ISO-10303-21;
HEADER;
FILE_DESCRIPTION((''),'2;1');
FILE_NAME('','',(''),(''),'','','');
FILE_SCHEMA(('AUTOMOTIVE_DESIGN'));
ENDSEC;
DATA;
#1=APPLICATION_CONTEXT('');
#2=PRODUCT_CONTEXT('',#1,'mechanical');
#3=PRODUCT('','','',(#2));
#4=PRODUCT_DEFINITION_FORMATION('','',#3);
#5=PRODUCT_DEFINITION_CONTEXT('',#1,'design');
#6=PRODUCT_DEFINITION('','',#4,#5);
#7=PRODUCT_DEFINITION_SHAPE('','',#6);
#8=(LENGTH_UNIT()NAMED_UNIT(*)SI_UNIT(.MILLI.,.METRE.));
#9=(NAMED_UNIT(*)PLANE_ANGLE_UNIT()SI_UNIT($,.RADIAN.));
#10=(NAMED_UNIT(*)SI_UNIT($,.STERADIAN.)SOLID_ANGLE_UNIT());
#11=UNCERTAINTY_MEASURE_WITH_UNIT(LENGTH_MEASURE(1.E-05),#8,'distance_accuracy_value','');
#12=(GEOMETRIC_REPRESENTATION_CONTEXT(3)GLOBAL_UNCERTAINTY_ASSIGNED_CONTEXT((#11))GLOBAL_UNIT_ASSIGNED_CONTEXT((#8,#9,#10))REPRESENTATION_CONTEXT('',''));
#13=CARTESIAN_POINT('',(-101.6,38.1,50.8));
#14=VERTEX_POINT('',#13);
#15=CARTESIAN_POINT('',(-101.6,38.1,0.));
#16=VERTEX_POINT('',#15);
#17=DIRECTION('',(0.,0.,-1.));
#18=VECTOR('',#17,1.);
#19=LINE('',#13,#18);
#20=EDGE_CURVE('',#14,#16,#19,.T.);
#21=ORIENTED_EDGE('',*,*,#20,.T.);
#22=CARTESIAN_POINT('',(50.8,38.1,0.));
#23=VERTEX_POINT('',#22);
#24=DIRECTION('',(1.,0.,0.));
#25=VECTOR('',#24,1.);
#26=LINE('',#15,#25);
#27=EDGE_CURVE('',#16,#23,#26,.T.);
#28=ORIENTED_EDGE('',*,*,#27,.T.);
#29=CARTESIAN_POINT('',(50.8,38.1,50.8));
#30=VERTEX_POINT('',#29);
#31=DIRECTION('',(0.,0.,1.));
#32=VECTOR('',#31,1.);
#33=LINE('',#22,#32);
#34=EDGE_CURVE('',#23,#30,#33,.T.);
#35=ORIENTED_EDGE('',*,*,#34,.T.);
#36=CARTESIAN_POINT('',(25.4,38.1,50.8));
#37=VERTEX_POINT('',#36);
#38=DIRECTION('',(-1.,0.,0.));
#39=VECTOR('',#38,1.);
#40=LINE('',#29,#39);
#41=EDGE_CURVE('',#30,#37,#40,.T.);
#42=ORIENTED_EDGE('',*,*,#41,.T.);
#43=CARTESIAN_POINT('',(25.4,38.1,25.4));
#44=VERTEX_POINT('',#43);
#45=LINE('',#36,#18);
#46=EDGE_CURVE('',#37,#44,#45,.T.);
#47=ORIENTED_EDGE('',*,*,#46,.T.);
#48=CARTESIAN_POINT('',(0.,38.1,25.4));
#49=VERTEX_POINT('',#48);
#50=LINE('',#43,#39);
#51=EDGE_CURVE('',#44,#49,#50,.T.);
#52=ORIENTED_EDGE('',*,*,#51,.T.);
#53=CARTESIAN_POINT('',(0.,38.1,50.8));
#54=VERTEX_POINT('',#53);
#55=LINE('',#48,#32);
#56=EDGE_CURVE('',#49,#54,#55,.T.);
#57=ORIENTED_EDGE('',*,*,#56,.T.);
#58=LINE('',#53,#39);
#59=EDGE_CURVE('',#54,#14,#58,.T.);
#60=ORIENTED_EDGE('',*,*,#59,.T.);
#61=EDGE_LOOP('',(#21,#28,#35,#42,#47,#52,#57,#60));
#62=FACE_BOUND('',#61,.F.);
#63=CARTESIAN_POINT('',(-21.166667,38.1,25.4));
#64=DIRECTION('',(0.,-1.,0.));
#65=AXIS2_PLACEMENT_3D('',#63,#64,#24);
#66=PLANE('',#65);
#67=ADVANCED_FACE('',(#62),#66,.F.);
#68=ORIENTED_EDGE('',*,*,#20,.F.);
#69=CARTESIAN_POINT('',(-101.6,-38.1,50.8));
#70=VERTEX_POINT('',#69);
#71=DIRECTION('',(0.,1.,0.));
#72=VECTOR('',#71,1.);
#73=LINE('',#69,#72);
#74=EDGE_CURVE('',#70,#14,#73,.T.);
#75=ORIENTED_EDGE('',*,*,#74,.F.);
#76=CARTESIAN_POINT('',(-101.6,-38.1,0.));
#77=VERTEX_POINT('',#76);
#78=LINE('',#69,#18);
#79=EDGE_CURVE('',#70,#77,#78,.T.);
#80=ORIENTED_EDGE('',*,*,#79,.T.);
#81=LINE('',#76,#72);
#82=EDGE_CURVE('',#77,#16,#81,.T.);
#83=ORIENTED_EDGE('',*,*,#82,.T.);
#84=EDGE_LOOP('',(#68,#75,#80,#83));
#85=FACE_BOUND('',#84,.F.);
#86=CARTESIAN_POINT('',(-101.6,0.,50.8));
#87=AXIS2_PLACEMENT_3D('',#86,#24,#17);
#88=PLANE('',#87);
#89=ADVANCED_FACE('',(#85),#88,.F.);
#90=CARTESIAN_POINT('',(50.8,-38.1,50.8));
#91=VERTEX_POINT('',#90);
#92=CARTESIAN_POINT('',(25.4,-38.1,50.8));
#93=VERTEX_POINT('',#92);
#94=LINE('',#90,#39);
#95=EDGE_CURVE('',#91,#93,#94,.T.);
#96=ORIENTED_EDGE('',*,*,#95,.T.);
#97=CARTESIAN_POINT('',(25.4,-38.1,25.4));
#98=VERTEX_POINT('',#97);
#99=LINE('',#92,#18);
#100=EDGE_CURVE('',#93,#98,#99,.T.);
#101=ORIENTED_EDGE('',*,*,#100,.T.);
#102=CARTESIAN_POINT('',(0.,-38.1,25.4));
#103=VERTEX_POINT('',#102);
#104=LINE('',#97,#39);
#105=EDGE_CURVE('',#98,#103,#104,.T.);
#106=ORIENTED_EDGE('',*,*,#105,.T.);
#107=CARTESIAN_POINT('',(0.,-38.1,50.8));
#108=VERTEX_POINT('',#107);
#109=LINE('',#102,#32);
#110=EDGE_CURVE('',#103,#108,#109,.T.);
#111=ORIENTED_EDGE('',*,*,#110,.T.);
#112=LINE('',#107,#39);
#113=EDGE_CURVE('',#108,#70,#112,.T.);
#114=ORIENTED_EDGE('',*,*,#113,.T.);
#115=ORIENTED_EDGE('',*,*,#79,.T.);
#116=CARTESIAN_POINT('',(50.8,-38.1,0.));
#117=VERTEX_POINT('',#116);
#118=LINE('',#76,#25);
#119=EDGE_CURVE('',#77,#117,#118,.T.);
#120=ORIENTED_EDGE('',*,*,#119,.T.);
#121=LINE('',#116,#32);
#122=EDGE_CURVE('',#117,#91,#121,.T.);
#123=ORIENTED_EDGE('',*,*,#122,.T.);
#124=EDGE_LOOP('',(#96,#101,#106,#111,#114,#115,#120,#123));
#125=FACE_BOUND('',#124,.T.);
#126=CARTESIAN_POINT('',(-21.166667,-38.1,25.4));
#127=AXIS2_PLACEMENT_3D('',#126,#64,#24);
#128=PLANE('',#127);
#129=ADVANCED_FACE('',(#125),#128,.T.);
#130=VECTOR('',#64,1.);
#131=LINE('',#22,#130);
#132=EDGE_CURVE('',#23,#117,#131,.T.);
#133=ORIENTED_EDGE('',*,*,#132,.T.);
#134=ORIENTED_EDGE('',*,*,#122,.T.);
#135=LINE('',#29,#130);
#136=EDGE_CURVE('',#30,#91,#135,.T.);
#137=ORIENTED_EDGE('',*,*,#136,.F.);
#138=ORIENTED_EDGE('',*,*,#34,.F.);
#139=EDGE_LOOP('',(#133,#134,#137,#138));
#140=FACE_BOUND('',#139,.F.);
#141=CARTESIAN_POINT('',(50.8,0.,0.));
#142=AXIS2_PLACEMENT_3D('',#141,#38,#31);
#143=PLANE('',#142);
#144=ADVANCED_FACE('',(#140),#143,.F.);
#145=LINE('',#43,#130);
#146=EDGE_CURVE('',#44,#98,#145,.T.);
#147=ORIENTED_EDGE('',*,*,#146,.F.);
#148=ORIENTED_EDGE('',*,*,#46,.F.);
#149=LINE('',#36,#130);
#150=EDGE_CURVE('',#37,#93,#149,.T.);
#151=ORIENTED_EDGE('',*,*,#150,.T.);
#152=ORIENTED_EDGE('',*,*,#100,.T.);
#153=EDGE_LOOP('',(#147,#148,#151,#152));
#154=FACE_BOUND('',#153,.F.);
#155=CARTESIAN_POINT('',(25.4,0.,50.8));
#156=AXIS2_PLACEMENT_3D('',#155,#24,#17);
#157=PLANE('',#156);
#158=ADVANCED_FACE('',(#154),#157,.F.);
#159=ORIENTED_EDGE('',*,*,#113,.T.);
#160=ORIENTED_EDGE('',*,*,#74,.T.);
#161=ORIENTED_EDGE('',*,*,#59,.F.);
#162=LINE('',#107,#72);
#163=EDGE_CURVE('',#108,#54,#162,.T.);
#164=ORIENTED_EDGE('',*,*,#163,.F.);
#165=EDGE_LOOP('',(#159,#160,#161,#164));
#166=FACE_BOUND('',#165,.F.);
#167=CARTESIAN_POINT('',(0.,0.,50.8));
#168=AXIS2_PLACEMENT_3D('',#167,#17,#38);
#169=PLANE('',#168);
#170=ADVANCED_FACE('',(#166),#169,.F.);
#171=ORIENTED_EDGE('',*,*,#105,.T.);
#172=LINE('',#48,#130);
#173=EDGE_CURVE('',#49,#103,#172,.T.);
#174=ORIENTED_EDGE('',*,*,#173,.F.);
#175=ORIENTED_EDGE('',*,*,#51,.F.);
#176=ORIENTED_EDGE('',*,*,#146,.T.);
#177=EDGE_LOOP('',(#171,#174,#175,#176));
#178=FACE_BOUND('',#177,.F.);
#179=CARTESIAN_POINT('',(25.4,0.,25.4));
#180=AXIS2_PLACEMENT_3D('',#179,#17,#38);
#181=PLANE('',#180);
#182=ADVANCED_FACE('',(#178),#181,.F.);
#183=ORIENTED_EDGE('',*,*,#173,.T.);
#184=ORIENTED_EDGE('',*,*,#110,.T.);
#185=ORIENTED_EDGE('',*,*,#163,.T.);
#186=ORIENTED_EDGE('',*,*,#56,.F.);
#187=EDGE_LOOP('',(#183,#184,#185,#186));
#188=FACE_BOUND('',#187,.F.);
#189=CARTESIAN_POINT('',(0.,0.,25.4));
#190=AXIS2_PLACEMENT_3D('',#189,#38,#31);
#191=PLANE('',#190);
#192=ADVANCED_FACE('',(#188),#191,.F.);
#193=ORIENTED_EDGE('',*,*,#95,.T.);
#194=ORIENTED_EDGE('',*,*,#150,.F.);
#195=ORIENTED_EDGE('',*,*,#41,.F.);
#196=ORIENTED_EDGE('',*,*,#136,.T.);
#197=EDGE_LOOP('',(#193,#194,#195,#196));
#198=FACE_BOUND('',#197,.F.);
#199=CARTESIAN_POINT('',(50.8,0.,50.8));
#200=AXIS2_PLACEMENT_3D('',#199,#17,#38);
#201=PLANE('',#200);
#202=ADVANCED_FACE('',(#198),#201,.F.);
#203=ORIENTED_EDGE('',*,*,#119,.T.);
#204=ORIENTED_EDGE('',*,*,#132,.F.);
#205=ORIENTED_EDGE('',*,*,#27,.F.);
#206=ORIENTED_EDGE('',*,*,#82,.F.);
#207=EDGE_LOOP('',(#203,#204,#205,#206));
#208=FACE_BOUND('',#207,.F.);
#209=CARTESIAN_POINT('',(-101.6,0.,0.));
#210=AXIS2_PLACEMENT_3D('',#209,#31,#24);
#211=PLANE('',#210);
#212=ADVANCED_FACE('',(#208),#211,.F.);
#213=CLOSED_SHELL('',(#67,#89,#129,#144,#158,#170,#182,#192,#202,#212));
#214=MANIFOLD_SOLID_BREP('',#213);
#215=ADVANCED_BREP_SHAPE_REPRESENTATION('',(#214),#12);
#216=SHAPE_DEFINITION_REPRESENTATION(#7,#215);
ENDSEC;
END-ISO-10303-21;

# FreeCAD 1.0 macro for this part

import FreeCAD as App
import Part
import Sketcher
Q = App.Units.Quantity


def add_polygon(sketch, points):
    """Adds a closed chain of lines whose ends are joined by coincident constraints."""
    first, n = sketch.GeometryCount, len(points)
    for a, b in zip(points, points[1:] + points[:1]):
        sketch.addGeometry(Part.LineSegment(App.Vector(*a, 0), App.Vector(*b, 0)), False)
    for i in range(n):
        sketch.addConstraint(Sketcher.Constraint("Coincident", first + i, 2, first + (i + 1) % n, 1))

doc = App.newDocument("Part")
body = doc.addObject("PartDesign::Body", "Body")

sketch1 = body.newObject("Sketcher::SketchObject", "Sketch")
sketch1.AttachmentSupport = (doc.getObject("XZ_Plane"), [""])
sketch1.MapMode = "FlatFace"
add_polygon(sketch1, [(-101.6, 50.8), (-101.6, 0), (50.8, 0), (50.8, 50.8), (25.4, 50.8), (25.4, 25.4), (0, 25.4), (0, 50.8)])
sketch1.addConstraint([
    Sketcher.Constraint("Vertical", 0),
    Sketcher.Constraint("Horizontal", 1),
    Sketcher.Constraint("Vertical", 2),
    Sketcher.Constraint("Horizontal", 3),
    Sketcher.Constraint("Vertical", 4),
    Sketcher.Constraint("Horizontal", 5),
    Sketcher.Constraint("Vertical", 6),
    Sketcher.Constraint("Horizontal", 7),
    Sketcher.Constraint("PointOnObject", 0, 2, -1),
    Sketcher.Constraint("PointOnObject", 5, 2, -2),
    Sketcher.Constraint("Horizontal", 3, 2, 6, 2),
    Sketcher.Constraint("Equal", 3, 5),
    Sketcher.Constraint("Equal", 5, 4),
    Sketcher.Constraint("DistanceX", 1, 1, 1, 2, Q("6 in")),
    Sketcher.Constraint("DistanceX", 3, 2, 3, 1, Q("1 in")),
    Sketcher.Constraint("DistanceY", 0, 2, 0, 1, Q("2 in")),
])
pad1 = body.newObject("PartDesign::Pad", "Pad")
pad1.Profile = sketch1
pad1.Length = Q("1.5 in")
pad1.Reversed = True

sketch2 = body.newObject("Sketcher::SketchObject", "Sketch001")
sketch2.AttachmentSupport = (doc.getObject("XZ_Plane"), [""])
sketch2.MapMode = "FlatFace"
add_polygon(sketch2, [(-101.6, 0), (50.8, 0), (50.8, 50.8), (25.4, 50.8), (25.4, 25.4), (0, 25.4), (0, 50.8), (-101.6, 50.8)])
sketch2.addConstraint([
    Sketcher.Constraint("Horizontal", 0),
    Sketcher.Constraint("Vertical", 1),
    Sketcher.Constraint("Horizontal", 2),
    Sketcher.Constraint("Vertical", 3),
    Sketcher.Constraint("Horizontal", 4),
    Sketcher.Constraint("Vertical", 5),
    Sketcher.Constraint("Horizontal", 6),
    Sketcher.Constraint("Vertical", 7),
    Sketcher.Constraint("PointOnObject", 0, 2, -1),
    Sketcher.Constraint("PointOnObject", 4, 2, -2),
    Sketcher.Constraint("Horizontal", 2, 2, 5, 2),
    Sketcher.Constraint("Equal", 2, 4),
    Sketcher.Constraint("Equal", 4, 3),
    Sketcher.Constraint("DistanceX", 0, 1, 0, 2, Q("6 in")),
    Sketcher.Constraint("DistanceX", 2, 2, 2, 1, Q("1 in")),
    Sketcher.Constraint("DistanceY", 1, 1, 1, 2, Q("2 in")),
])
pad2 = body.newObject("PartDesign::Pad", "Pad001")
pad2.Profile = sketch2
pad2.Length = Q("1.5 in")

doc.recompute()
